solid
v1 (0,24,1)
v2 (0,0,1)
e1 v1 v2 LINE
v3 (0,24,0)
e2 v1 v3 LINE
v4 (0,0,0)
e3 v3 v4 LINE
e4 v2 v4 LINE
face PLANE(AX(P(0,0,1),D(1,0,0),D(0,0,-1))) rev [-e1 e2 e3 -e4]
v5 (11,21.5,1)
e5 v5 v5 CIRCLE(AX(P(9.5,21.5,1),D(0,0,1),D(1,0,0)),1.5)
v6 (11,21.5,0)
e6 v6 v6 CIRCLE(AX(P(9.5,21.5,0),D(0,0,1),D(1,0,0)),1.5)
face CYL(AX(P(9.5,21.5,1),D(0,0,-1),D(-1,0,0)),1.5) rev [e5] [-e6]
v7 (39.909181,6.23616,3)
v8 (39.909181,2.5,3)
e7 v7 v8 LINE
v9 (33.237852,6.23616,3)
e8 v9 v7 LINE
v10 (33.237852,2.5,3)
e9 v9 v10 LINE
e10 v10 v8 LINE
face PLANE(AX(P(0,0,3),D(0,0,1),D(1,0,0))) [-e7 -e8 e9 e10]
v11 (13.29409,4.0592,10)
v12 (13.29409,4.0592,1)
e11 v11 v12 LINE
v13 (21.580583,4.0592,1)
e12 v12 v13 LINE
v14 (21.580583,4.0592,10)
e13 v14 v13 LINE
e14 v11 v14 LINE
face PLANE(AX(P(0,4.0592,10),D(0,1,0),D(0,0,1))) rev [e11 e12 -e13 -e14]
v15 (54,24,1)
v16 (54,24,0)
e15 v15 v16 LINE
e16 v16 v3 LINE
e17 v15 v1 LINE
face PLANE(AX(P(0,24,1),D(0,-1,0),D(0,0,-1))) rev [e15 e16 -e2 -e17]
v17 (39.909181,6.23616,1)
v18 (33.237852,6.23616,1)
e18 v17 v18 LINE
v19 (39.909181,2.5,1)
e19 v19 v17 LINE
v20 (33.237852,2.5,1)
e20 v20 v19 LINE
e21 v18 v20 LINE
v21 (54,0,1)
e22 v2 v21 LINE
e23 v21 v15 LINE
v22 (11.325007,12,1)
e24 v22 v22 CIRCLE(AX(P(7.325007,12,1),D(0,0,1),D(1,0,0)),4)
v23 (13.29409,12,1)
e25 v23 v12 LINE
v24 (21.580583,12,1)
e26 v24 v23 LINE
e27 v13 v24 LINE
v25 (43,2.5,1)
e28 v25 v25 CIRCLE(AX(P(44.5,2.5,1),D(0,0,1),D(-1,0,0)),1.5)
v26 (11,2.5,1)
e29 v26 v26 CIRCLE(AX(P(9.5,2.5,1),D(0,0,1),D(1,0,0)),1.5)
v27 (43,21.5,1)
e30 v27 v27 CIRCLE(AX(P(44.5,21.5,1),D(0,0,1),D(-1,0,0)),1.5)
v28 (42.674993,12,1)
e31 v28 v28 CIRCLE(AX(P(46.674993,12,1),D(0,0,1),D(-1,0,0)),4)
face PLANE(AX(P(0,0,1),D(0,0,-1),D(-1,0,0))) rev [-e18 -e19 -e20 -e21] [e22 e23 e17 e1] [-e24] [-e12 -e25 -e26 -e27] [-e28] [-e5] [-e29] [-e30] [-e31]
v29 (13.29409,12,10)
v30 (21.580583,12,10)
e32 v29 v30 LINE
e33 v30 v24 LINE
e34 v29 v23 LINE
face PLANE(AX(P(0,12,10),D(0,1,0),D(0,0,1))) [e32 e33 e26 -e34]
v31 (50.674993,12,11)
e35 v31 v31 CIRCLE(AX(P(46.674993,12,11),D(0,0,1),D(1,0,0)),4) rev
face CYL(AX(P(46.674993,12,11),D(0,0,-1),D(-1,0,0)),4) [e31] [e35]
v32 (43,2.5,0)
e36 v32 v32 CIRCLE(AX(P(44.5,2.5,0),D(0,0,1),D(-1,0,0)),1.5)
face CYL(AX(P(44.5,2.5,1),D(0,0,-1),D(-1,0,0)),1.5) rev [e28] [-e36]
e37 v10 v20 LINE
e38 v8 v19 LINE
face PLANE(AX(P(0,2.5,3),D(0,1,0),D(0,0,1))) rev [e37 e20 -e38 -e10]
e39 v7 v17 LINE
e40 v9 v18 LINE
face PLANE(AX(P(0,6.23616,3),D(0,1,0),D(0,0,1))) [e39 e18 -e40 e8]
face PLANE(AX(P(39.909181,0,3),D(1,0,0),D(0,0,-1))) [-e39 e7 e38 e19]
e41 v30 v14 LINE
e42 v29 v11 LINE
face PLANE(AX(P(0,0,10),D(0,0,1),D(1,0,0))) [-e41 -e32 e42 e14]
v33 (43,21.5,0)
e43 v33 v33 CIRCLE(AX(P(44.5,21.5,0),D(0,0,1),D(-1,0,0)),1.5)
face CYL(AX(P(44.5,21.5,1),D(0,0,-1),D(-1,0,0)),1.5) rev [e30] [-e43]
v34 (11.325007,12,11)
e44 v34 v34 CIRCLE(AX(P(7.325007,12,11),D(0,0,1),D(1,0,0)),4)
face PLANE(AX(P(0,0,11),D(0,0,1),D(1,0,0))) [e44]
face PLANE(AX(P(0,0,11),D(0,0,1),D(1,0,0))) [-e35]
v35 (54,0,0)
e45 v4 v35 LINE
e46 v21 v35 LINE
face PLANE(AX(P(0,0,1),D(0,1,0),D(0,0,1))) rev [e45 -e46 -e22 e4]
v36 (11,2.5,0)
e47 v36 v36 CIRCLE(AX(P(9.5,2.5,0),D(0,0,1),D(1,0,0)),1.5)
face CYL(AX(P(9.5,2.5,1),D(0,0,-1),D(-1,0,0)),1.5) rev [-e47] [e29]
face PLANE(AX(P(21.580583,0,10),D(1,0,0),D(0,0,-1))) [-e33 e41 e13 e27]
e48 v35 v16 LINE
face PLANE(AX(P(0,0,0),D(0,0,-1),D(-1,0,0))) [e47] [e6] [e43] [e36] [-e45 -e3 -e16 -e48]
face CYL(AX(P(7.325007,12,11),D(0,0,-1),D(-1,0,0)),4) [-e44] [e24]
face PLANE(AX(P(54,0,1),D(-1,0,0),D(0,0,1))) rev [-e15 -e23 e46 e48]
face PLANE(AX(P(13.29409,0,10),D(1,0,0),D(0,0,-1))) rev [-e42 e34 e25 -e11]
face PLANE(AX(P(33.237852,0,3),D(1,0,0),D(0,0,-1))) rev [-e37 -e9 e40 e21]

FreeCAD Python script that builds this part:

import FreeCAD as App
import Part
import Sketcher
Q = App.Units.Quantity


def add_polygon(sketch, points):
    """Adds a closed chain of lines whose ends are joined by coincident constraints."""
    first, n = sketch.GeometryCount, len(points)
    for a, b in zip(points, points[1:] + points[:1]):
        sketch.addGeometry(Part.LineSegment(App.Vector(*a, 0), App.Vector(*b, 0)), False)
    for i in range(n):
        sketch.addConstraint(Sketcher.Constraint("Coincident", first + i, 2, first + (i + 1) % n, 1))

doc = App.newDocument("Part")
params = doc.addObject("Spreadsheet::Sheet", "Params")
for row, (alias, value) in enumerate([
    ("sketch1_diameter", "3 mm"),
    ("sketch1_diameter2", "8 mm"),
    ("sketch1_width", "54 mm"),
    ("sketch1_height", "24 mm"),
    ("pad1_length", "1 mm"),
    ("sketch2_diameter", "8 mm"),
    ("pad2_length", "11 mm"),
    ("pad3_length", "10 mm"),
    ("pad4_length", "3 mm"),
], start=1):
    params.set(f"A{row}", alias)
    params.set(f"B{row}", "=" + value)
    params.setAlias(f"B{row}", alias)

body = doc.addObject("PartDesign::Body", "Body")

# Sketch on XY plane
sketch1 = body.newObject("Sketcher::SketchObject", "Sketch")
sketch1.AttachmentSupport = (doc.getObject("XY_Plane"), [""])
sketch1.MapMode = "FlatFace"
add_polygon(sketch1, [(0, 24), (0, 0), (54, 0), (54, 24)])  # lines 0-3
sketch1.addGeometry(Part.Circle(App.Vector(9.5, 2.5, 0), App.Vector(0, 0, 1), 1.5), False)  # 4
add_polygon(sketch1, [(21.6, 4.1), (13.3, 4.1), (13.3, 12), (21.6, 12)])  # lines 5-8
add_polygon(sketch1, [(39.9, 2.5), (33.2, 2.5), (33.2, 6.2), (39.9, 6.2)])  # lines 9-12
sketch1.addGeometry(Part.Circle(App.Vector(44.5, 2.5, 0), App.Vector(0, 0, 1), 1.5), False)  # 13
sketch1.addGeometry(Part.Circle(App.Vector(7.3, 12, 0), App.Vector(0, 0, 1), 4), False)  # 14
sketch1.addGeometry(Part.Circle(App.Vector(9.5, 21.5, 0), App.Vector(0, 0, 1), 1.5), False)  # 15
sketch1.addGeometry(Part.Circle(App.Vector(46.7, 12, 0), App.Vector(0, 0, 1), 4), False)  # 16
sketch1.addGeometry(Part.Circle(App.Vector(44.5, 21.5, 0), App.Vector(0, 0, 1), 1.5), False)  # 17
sketch1.addConstraint([
    Sketcher.Constraint("Vertical", 0),
    Sketcher.Constraint("Horizontal", 1),
    Sketcher.Constraint("Vertical", 2),
    Sketcher.Constraint("Horizontal", 3),
    Sketcher.Constraint("Horizontal", 5),
    Sketcher.Constraint("Vertical", 6),
    Sketcher.Constraint("Horizontal", 7),
    Sketcher.Constraint("Vertical", 8),
    Sketcher.Constraint("Horizontal", 9),
    Sketcher.Constraint("Vertical", 10),
    Sketcher.Constraint("Horizontal", 11),
    Sketcher.Constraint("Vertical", 12),
    Sketcher.Constraint("Coincident", 0, 2, -1, 1),
    Sketcher.Constraint("Equal", 4, 13),
    Sketcher.Constraint("Equal", 13, 15),
    Sketcher.Constraint("Equal", 14, 16),
    Sketcher.Constraint("Equal", 15, 17),
    Sketcher.Constraint("Horizontal", 4, 3, 13, 3),
    Sketcher.Constraint("Horizontal", 14, 3, 16, 3),
    Sketcher.Constraint("Horizontal", 15, 3, 17, 3),
    Sketcher.Constraint("Horizontal", 16, 3, 6, 2),
    Sketcher.Constraint("Horizontal", 13, 3, 9, 2),
    Sketcher.Constraint("Vertical", 4, 3, 15, 3),
    Sketcher.Constraint("Vertical", 13, 3, 17, 3),
    Sketcher.Constraint("Diameter", 4, Q("3 mm")),
    Sketcher.Constraint("Diameter", 14, Q("8 mm")),
    Sketcher.Constraint("DistanceX", 1, 1, 1, 2, Q("54 mm")),
    Sketcher.Constraint("DistanceY", 0, 2, 0, 1, Q("24 mm")),
    Sketcher.Constraint("DistanceY", -1, 1, 14, 3, Q("12 mm")),
    Sketcher.Constraint("DistanceX", 4, 3, 13, 3, Q("35 mm")),
    Sketcher.Constraint("DistanceY", 4, 3, 15, 3, Q("19 mm")),
    Sketcher.Constraint("DistanceX", -1, 1, 4, 3, Q("9.5 mm")),
    Sketcher.Constraint("DistanceY", -1, 1, 4, 3, Q("2.5 mm")),
    Sketcher.Constraint("DistanceY", 6, 1, 6, 2, Q("7.9408 mm")),
    Sketcher.Constraint("DistanceX", 9, 2, 9, 1, Q("6.671329 mm")),
    Sketcher.Constraint("DistanceY", 10, 1, 10, 2, Q("3.73616 mm")),
    Sketcher.Constraint("DistanceX", 5, 2, 5, 1, Q("8.286493 mm")),
    Sketcher.Constraint("DistanceX", -1, 1, 5, 2, Q("13.29409 mm")),
    Sketcher.Constraint("DistanceX", -1, 1, 11, 2, Q("39.909181 mm")),
    Sketcher.Constraint("DistanceX", 9, 2, 16, 3, Q("13.437141 mm")),
    Sketcher.Constraint("DistanceX", -1, 1, 14, 3, Q("7.325007 mm")),
])
sketch1.setExpression("Constraints[36]", "Params.sketch1_diameter")
sketch1.setExpression("Constraints[37]", "Params.sketch1_diameter2")
sketch1.setExpression("Constraints[38]", "Params.sketch1_width")
sketch1.setExpression("Constraints[39]", "Params.sketch1_height")
pad1 = body.newObject("PartDesign::Pad", "Pad")
pad1.Profile = sketch1
pad1.setExpression("Length", "Params.pad1_length")

# Sketch on XY plane
sketch2 = body.newObject("Sketcher::SketchObject", "Sketch001")
sketch2.AttachmentSupport = (doc.getObject("XY_Plane"), [""])
sketch2.MapMode = "FlatFace"
sketch2.addGeometry([
    Part.Circle(App.Vector(7.3, 12, 0), App.Vector(0, 0, 1), 4),
    Part.Circle(App.Vector(46.7, 12, 0), App.Vector(0, 0, 1), 4),
], False)
sketch2.addConstraint([
    Sketcher.Constraint("Equal", 0, 1),
    Sketcher.Constraint("Horizontal", 0, 3, 1, 3),
    Sketcher.Constraint("Diameter", 0, Q("8 mm")),
    Sketcher.Constraint("DistanceY", -1, 1, 0, 3, Q("12 mm")),
    Sketcher.Constraint("DistanceX", -1, 1, 0, 3, Q("7.325007 mm")),
    Sketcher.Constraint("DistanceX", -1, 1, 1, 3, Q("46.674993 mm")),
])
sketch2.setExpression("Constraints[2]", "Params.sketch2_diameter")
pad2 = body.newObject("PartDesign::Pad", "Pad001")
pad2.Profile = sketch2
pad2.setExpression("Length", "Params.pad2_length")

# Sketch on XY plane
sketch3 = body.newObject("Sketcher::SketchObject", "Sketch002")
sketch3.AttachmentSupport = (doc.getObject("XY_Plane"), [""])
sketch3.MapMode = "FlatFace"
add_polygon(sketch3, [(13, 12), (13, 4), (22, 4), (22, 12)])  # lines 0-3
sketch3.addConstraint([
    Sketcher.Constraint("Vertical", 0),
    Sketcher.Constraint("Horizontal", 1),
    Sketcher.Constraint("Vertical", 2),
    Sketcher.Constraint("Horizontal", 3),
    Sketcher.Constraint("DistanceY", -1, 1, 2, 2, Q("12 mm")),
    Sketcher.Constraint("DistanceY", 0, 2, 0, 1, Q("7.9408 mm")),
    Sketcher.Constraint("DistanceX", 1, 1, 1, 2, Q("8.286493 mm")),
    Sketcher.Constraint("DistanceX", -1, 1, 0, 2, Q("13.29409 mm")),
])
pad3 = body.newObject("PartDesign::Pad", "Pad002")
pad3.Profile = sketch3
pad3.setExpression("Length", "Params.pad3_length")

# Sketch on XY plane
sketch4 = body.newObject("Sketcher::SketchObject", "Sketch003")
sketch4.AttachmentSupport = (doc.getObject("XY_Plane"), [""])
sketch4.MapMode = "FlatFace"
add_polygon(sketch4, [(33.2, 6.2), (33.2, 2.5), (39.9, 2.5), (39.9, 6.2)])  # lines 0-3
sketch4.addConstraint([
    Sketcher.Constraint("Vertical", 0),
    Sketcher.Constraint("Horizontal", 1),
    Sketcher.Constraint("Vertical", 2),
    Sketcher.Constraint("Horizontal", 3),
    Sketcher.Constraint("DistanceY", -1, 1, 0, 2, Q("2.5 mm")),
    Sketcher.Constraint("DistanceX", 1, 1, 1, 2, Q("6.671329 mm")),
    Sketcher.Constraint("DistanceY", 0, 2, 0, 1, Q("3.73616 mm")),
    Sketcher.Constraint("DistanceX", -1, 1, 1, 2, Q("39.909181 mm")),
])
pad4 = body.newObject("PartDesign::Pad", "Pad003")
pad4.Profile = sketch4
pad4.setExpression("Length", "Params.pad4_length")

doc.recompute()
